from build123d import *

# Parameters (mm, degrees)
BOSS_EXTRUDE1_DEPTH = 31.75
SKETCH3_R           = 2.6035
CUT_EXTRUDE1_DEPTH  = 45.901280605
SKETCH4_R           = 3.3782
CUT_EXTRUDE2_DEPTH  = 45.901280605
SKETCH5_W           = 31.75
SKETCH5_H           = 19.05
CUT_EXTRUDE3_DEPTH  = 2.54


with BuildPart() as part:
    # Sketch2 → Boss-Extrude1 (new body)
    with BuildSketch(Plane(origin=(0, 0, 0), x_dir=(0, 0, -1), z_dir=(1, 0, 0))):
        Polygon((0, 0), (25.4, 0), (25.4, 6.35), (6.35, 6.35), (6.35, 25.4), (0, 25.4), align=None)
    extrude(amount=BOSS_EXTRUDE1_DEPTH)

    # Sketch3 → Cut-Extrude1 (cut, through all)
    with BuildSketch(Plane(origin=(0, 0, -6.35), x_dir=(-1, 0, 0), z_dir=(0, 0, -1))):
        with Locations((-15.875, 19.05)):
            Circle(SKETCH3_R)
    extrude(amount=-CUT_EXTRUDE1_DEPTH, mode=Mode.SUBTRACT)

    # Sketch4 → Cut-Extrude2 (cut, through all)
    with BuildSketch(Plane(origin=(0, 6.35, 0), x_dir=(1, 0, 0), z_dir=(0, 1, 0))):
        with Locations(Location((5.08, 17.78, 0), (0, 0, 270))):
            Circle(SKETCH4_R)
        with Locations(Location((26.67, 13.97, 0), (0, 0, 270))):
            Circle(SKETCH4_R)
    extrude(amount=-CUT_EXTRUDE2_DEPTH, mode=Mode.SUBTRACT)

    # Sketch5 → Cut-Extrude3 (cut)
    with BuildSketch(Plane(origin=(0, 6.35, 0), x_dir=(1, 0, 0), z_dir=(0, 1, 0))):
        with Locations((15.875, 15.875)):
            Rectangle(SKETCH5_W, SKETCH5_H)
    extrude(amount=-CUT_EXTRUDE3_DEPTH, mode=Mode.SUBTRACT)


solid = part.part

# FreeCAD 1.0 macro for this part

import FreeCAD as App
import Part
import Sketcher
Q = App.Units.Quantity


def add_polygon(sketch, points):
    """Adds a closed chain of lines whose ends are joined by coincident constraints."""
    first, n = sketch.GeometryCount, len(points)
    for a, b in zip(points, points[1:] + points[:1]):
        sketch.addGeometry(Part.LineSegment(App.Vector(*a, 0), App.Vector(*b, 0)), False)
    for i in range(n):
        sketch.addConstraint(Sketcher.Constraint("Coincident", first + i, 2, first + (i + 1) % n, 1))

doc = App.newDocument("Part")
params = doc.addObject("Spreadsheet::Sheet", "Params")
for row, (alias, value) in enumerate([
    ("sketch1_width", "1 in"),
    ("sketch1_width2", "0.25 in"),
    ("pad1_length", "1.25 in"),
    ("sketch2_diameter", "0.205 in"),
    ("sketch3_diameter", "0.266 in"),
    ("sketch4_width", "1.25 in"),
    ("sketch4_height", "0.75 in"),
    ("pocket3_length", "0.1 in"),
], start=1):
    params.set(f"A{row}", alias)
    params.set(f"B{row}", "=" + value)
    params.setAlias(f"B{row}", alias)

body = doc.addObject("PartDesign::Body", "Body")

sketch1 = body.newObject("Sketcher::SketchObject", "Sketch")
sketch1.AttachmentSupport = (doc.getObject("YZ_Plane"), [""])
sketch1.MapMode = "FlatFace"
add_polygon(sketch1, [(0, 0), (0, -25.4), (6.35, -25.4), (6.35, -6.35), (25.4, -6.35), (25.4, 0)])
sketch1.addConstraint(Sketcher.Constraint("Vertical", 0))
sketch1.addConstraint(Sketcher.Constraint("Horizontal", 1))
sketch1.addConstraint(Sketcher.Constraint("Vertical", 2))
sketch1.addConstraint(Sketcher.Constraint("Horizontal", 3))
sketch1.addConstraint(Sketcher.Constraint("Vertical", 4))
sketch1.addConstraint(Sketcher.Constraint("Horizontal", 5))
sketch1.addConstraint(Sketcher.Constraint("Coincident", 5, 2, -1, 1))
sketch1.addConstraint(Sketcher.Constraint("Equal", 5, 0))
sketch1.addConstraint(Sketcher.Constraint("Equal", 3, 2))
sketch1.addConstraint(Sketcher.Constraint("DistanceX", 5, 2, 5, 1, Q("1 in")))
sketch1.addConstraint(Sketcher.Constraint("DistanceX", 1, 1, 1, 2, Q("0.25 in")))
sketch1.setExpression("Constraints[15]", "Params.sketch1_width")
sketch1.setExpression("Constraints[16]", "Params.sketch1_width2")
pad1 = body.newObject("PartDesign::Pad", "Pad")
pad1.Profile = sketch1
pad1.setExpression("Length", "Params.pad1_length")

sketch2 = body.newObject("Sketcher::SketchObject", "Sketch001")
sketch2.AttachmentSupport = (doc.getObject("XY_Plane"), [""])
sketch2.MapMode = "FlatFace"
sketch2.AttachmentOffset = App.Placement(App.Vector(0, 0, -0.25 * 25.4), App.Rotation())
sketch2.addGeometry(Part.Circle(App.Vector(15.875, 19.05, 0), App.Vector(0, 0, 1), 2.6035), False)
sketch2.addConstraint(Sketcher.Constraint("Diameter", 0, Q("0.205 in")))
sketch2.addConstraint(Sketcher.Constraint("DistanceY", -1, 1, 0, 3, Q("0.75 in")))
sketch2.addConstraint(Sketcher.Constraint("DistanceX", -1, 1, 0, 3, Q("0.625 in")))
sketch2.setExpression("Constraints[0]", "Params.sketch2_diameter")
pocket1 = body.newObject("PartDesign::Pocket", "Pocket")
pocket1.Profile = sketch2
pocket1.Type = "ThroughAll"
pocket1.Reversed = True

sketch3 = body.newObject("Sketcher::SketchObject", "Sketch002")
sketch3.AttachmentSupport = (doc.getObject("XZ_Plane"), [""])
sketch3.MapMode = "FlatFace"
sketch3.AttachmentOffset = App.Placement(App.Vector(0, 0, -0.25 * 25.4), App.Rotation())
sketch3.addGeometry(Part.Circle(App.Vector(5.08, -17.78, 0), App.Vector(0, 0, 1), 3.3782), False)
sketch3.addGeometry(Part.Circle(App.Vector(26.67, -13.97, 0), App.Vector(0, 0, 1), 3.3782), False)
sketch3.addConstraint(Sketcher.Constraint("Equal", 0, 1))
sketch3.addConstraint(Sketcher.Constraint("Diameter", 0, Q("0.266 in")))
sketch3.addConstraint(Sketcher.Constraint("DistanceX", -1, 1, 0, 3, Q("0.2 in")))
sketch3.addConstraint(Sketcher.Constraint("DistanceY", 0, 3, -1, 1, Q("0.7 in")))
sketch3.addConstraint(Sketcher.Constraint("DistanceX", -1, 1, 1, 3, Q("1.05 in")))
sketch3.addConstraint(Sketcher.Constraint("DistanceY", 1, 3, -1, 1, Q("0.55 in")))
sketch3.setExpression("Constraints[1]", "Params.sketch3_diameter")
pocket2 = body.newObject("PartDesign::Pocket", "Pocket001")
pocket2.Profile = sketch3
pocket2.Type = "ThroughAll"
pocket2.Reversed = True

sketch4 = body.newObject("Sketcher::SketchObject", "Sketch003")
sketch4.AttachmentSupport = (doc.getObject("XZ_Plane"), [""])
sketch4.MapMode = "FlatFace"
sketch4.AttachmentOffset = App.Placement(App.Vector(0, 0, -0.25 * 25.4), App.Rotation())
add_polygon(sketch4, [(0, -25.4), (0, -6.35), (31.75, -6.35), (31.75, -25.4)])
sketch4.addConstraint(Sketcher.Constraint("Vertical", 0))
sketch4.addConstraint(Sketcher.Constraint("Horizontal", 1))
sketch4.addConstraint(Sketcher.Constraint("Vertical", 2))
sketch4.addConstraint(Sketcher.Constraint("Horizontal", 3))
sketch4.addConstraint(Sketcher.Constraint("PointOnObject", 0, 2, -2))
sketch4.addConstraint(Sketcher.Constraint("DistanceY", 2, 2, -1, 1, Q("1 in")))
sketch4.addConstraint(Sketcher.Constraint("DistanceX", 1, 1, 1, 2, Q("1.25 in")))
sketch4.addConstraint(Sketcher.Constraint("DistanceY", 0, 1, 0, 2, Q("0.75 in")))
sketch4.setExpression("Constraints[10]", "Params.sketch4_width")
sketch4.setExpression("Constraints[11]", "Params.sketch4_height")
pocket3 = body.newObject("PartDesign::Pocket", "Pocket002")
pocket3.Profile = sketch4
pocket3.setExpression("Length", "Params.pocket3_length")
pocket3.Reversed = True

doc.recompute()
